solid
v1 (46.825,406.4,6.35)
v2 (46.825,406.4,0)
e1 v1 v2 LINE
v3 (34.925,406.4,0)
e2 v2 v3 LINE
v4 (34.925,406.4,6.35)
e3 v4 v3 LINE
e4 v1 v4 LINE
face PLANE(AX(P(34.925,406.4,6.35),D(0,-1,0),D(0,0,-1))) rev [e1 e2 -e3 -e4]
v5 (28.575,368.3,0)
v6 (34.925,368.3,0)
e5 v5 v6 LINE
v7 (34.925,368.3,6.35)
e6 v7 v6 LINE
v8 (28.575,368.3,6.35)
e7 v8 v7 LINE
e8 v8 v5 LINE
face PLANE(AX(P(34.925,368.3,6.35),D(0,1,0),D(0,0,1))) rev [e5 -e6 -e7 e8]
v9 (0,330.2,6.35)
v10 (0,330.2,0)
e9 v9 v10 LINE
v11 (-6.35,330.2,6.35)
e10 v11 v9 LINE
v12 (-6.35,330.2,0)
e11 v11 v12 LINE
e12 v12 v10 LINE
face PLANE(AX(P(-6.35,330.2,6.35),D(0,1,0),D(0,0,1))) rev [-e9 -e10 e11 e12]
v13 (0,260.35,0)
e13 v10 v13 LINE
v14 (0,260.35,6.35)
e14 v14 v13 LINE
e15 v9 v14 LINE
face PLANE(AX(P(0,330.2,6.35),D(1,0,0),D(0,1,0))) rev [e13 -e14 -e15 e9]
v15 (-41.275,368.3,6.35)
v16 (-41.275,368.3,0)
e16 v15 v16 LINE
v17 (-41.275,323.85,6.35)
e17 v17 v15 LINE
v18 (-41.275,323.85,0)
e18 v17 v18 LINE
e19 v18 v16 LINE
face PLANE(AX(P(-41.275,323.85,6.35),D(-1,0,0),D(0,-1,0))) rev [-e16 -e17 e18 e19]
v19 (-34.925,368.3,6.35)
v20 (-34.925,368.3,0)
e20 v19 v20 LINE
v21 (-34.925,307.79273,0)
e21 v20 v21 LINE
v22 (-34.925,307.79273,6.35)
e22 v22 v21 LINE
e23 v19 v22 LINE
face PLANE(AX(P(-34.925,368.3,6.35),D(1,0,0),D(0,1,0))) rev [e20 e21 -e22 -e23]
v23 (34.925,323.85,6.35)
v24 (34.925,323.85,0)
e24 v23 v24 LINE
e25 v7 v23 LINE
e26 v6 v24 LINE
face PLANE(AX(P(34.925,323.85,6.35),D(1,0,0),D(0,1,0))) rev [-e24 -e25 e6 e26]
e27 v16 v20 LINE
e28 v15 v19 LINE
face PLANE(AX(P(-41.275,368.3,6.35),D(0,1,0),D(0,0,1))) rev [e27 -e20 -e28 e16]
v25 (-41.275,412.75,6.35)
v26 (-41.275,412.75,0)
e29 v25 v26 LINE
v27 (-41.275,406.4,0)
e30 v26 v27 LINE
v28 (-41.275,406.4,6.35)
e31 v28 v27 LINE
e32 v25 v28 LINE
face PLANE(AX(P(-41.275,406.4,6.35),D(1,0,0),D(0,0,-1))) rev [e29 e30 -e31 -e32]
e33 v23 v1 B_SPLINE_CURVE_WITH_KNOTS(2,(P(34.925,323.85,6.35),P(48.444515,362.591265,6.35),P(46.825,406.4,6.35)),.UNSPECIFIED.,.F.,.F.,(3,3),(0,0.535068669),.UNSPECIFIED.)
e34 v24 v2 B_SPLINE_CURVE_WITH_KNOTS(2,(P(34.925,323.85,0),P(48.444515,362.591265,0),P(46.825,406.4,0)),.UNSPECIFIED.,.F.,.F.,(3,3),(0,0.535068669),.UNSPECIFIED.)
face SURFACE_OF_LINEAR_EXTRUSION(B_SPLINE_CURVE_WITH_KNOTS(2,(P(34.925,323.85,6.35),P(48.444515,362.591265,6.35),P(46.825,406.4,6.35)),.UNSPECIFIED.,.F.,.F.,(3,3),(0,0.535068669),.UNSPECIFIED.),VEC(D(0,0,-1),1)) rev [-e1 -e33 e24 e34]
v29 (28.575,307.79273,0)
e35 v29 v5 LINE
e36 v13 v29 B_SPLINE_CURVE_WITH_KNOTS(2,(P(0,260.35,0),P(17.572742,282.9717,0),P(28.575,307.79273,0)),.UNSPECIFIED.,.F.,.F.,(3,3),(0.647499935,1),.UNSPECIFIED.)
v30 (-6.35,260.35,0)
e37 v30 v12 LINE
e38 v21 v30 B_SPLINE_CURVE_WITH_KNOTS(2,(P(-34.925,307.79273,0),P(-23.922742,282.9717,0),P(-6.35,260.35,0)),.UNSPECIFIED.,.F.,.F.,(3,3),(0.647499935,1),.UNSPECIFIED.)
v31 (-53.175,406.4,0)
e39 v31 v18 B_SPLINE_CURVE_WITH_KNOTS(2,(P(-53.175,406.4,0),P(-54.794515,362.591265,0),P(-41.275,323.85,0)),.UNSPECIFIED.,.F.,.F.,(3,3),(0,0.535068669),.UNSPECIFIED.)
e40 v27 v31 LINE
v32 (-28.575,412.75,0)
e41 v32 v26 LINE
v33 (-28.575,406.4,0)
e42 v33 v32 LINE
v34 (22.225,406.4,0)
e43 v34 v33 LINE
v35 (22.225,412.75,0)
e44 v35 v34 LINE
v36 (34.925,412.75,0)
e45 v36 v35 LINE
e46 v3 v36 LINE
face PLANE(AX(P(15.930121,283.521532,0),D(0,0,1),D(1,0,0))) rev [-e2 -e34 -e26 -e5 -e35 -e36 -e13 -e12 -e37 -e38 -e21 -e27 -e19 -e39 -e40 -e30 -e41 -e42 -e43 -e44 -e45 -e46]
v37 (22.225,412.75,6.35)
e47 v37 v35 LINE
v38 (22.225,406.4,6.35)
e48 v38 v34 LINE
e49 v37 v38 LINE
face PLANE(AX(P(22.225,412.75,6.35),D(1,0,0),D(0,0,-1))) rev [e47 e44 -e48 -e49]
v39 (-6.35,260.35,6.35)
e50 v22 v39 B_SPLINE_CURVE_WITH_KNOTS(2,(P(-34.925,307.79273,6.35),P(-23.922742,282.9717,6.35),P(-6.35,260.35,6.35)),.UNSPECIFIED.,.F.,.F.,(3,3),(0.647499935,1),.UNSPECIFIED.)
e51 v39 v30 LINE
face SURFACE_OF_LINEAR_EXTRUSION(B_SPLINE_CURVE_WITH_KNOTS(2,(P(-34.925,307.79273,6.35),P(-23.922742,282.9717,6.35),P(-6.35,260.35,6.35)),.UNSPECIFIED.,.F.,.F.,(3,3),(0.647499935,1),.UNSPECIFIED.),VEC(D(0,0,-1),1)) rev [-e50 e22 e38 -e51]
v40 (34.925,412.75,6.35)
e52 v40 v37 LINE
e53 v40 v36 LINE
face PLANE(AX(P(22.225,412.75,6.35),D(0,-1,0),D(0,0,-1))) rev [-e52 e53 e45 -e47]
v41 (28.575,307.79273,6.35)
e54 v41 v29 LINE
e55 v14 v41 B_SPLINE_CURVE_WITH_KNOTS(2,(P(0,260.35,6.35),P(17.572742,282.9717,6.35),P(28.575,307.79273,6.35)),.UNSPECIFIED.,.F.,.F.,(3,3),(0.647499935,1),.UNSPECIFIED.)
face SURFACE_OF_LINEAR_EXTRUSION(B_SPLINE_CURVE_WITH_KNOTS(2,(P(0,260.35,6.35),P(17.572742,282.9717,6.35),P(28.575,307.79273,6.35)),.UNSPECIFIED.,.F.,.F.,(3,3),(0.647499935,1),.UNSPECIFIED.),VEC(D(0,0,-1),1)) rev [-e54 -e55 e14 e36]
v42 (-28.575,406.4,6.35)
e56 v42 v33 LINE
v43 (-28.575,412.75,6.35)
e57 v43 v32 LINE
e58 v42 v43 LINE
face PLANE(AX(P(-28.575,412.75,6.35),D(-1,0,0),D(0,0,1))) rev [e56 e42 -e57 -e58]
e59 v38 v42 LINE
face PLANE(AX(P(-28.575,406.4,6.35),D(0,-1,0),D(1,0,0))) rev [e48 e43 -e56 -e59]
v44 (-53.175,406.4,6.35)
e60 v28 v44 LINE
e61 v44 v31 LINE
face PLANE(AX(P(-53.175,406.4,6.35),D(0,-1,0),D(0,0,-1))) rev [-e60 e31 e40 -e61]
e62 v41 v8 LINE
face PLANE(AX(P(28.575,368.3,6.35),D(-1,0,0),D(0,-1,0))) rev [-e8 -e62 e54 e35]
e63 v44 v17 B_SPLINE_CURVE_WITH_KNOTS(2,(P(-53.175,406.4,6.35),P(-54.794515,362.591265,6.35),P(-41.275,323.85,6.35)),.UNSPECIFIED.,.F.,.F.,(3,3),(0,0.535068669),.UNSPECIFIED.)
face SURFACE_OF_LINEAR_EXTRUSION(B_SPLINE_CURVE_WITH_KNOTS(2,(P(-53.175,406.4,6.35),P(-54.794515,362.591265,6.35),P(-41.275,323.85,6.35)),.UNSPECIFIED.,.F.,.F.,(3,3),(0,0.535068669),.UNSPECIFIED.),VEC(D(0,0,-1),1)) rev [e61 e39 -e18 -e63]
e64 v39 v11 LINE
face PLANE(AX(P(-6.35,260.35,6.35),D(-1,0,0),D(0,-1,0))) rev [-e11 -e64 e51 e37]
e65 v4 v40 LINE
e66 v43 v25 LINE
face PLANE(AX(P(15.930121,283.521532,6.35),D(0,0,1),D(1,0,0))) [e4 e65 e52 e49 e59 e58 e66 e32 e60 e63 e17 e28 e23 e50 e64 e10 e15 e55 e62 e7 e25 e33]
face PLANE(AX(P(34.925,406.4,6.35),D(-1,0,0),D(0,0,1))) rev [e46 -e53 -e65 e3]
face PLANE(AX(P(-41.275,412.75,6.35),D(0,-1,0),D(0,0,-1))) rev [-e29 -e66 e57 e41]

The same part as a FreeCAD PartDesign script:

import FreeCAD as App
import Part
import Sketcher

V = App.Vector
Q = App.Units.Quantity

doc = App.newDocument("Part")
body = doc.addObject("PartDesign::Body", "Body")

# Sketch on XY plane
sketch1 = doc.addObject("Sketcher::SketchObject", "Sketch")
body.addObject(sketch1)
sketch1.AttachmentSupport = (doc.XY_Plane, [""])
sketch1.MapMode = "FlatFace"
sketch1.addGeometry([
    Part.LineSegment(V(-41.275, 406.4, 0), V(-53.175, 406.4, 0)),  # 0
    Part.BSplineCurve([V(-53.175, 406.4, 0), V(-54.794515, 362.591265, 0), V(-41.275, 323.85, 0)], [3, 3], [0, 0.535068669], False, 2, [1, 1, 1], False),  # 1
    Part.LineSegment(V(-41.275, 323.85, 0), V(-41.275, 368.3, 0)),  # 2
    Part.LineSegment(V(-41.275, 368.3, 0), V(-34.925, 368.3, 0)),  # 3
    Part.LineSegment(V(-34.925, 368.3, 0), V(-34.925, 307.79273, 0)),  # 4
    Part.BSplineCurve([V(-34.925, 307.79273, 0), V(-23.922742, 282.9717, 0), V(-6.35, 260.35, 0)], [3, 3], [0.647499935, 1], False, 2, [1, 1, 1], False),  # 5
    Part.LineSegment(V(-6.35, 260.35, 0), V(-6.35, 330.2, 0)),  # 6
    Part.LineSegment(V(-6.35, 330.2, 0), V(0, 330.2, 0)),  # 7
    Part.LineSegment(V(0, 330.2, 0), V(0, 260.35, 0)),  # 8
    Part.BSplineCurve([V(28.575, 307.79273, 0), V(17.572742, 282.9717, 0), V(0, 260.35, 0)], [3, 3], [0.647499935, 1], False, 2, [1, 1, 1], False),  # 9
    Part.LineSegment(V(28.575, 307.79273, 0), V(28.575, 368.3, 0)),  # 10
    Part.LineSegment(V(28.575, 368.3, 0), V(34.925, 368.3, 0)),  # 11
    Part.LineSegment(V(34.925, 368.3, 0), V(34.925, 323.85, 0)),  # 12
    Part.BSplineCurve([V(46.825, 406.4, 0), V(48.444515, 362.591265, 0), V(34.925, 323.85, 0)], [3, 3], [0, 0.535068669], False, 2, [1, 1, 1], False),  # 13
    Part.LineSegment(V(46.825, 406.4, 0), V(34.925, 406.4, 0)),  # 14
    Part.LineSegment(V(34.925, 406.4, 0), V(34.925, 412.75, 0)),  # 15
    Part.LineSegment(V(34.925, 412.75, 0), V(22.225, 412.75, 0)),  # 16
    Part.LineSegment(V(22.225, 412.75, 0), V(22.225, 406.4, 0)),  # 17
    Part.LineSegment(V(22.225, 406.4, 0), V(-28.575, 406.4, 0)),  # 18
    Part.LineSegment(V(-28.575, 406.4, 0), V(-28.575, 412.75, 0)),  # 19
    Part.LineSegment(V(-28.575, 412.75, 0), V(-41.275, 412.75, 0)),  # 20
    Part.LineSegment(V(-41.275, 412.75, 0), V(-41.275, 406.4, 0)),  # 21
], False)
sketch1.addConstraint([
    Sketcher.Constraint("Block", 1),
    Sketcher.Constraint("Block", 5),
    Sketcher.Constraint("Block", 9),
    Sketcher.Constraint("Block", 13),
    Sketcher.Constraint("Coincident", 0, 2, 1, 1),
    Sketcher.Constraint("Coincident", 1, 2, 2, 1),
    Sketcher.Constraint("Coincident", 2, 2, 3, 1),
    Sketcher.Constraint("Coincident", 3, 2, 4, 1),
    Sketcher.Constraint("Coincident", 4, 2, 5, 1),
    Sketcher.Constraint("Coincident", 5, 2, 6, 1),
    Sketcher.Constraint("Coincident", 6, 2, 7, 1),
    Sketcher.Constraint("Coincident", 7, 2, 8, 1),
    Sketcher.Constraint("Coincident", 8, 2, 9, 2),
    Sketcher.Constraint("Coincident", 9, 1, 10, 1),
    Sketcher.Constraint("Coincident", 10, 2, 11, 1),
    Sketcher.Constraint("Coincident", 11, 2, 12, 1),
    Sketcher.Constraint("Coincident", 12, 2, 13, 2),
    Sketcher.Constraint("Coincident", 13, 1, 14, 1),
    Sketcher.Constraint("Coincident", 14, 2, 15, 1),
    Sketcher.Constraint("Coincident", 15, 2, 16, 1),
    Sketcher.Constraint("Coincident", 16, 2, 17, 1),
    Sketcher.Constraint("Coincident", 17, 2, 18, 1),
    Sketcher.Constraint("Coincident", 18, 2, 19, 1),
    Sketcher.Constraint("Coincident", 19, 2, 20, 1),
    Sketcher.Constraint("Coincident", 20, 2, 21, 1),
    Sketcher.Constraint("Coincident", 21, 2, 0, 1),
    Sketcher.Constraint("Horizontal", 0),
    Sketcher.Constraint("Vertical", 2),
    Sketcher.Constraint("Horizontal", 3),
    Sketcher.Constraint("Vertical", 4),
    Sketcher.Constraint("Vertical", 6),
    Sketcher.Constraint("Horizontal", 7),
    Sketcher.Constraint("Vertical", 8),
    Sketcher.Constraint("Vertical", 10),
    Sketcher.Constraint("Horizontal", 11),
    Sketcher.Constraint("Vertical", 12),
    Sketcher.Constraint("Horizontal", 14),
    Sketcher.Constraint("Vertical", 15),
    Sketcher.Constraint("Horizontal", 16),
    Sketcher.Constraint("Vertical", 17),
    Sketcher.Constraint("Horizontal", 18),
    Sketcher.Constraint("Vertical", 19),
    Sketcher.Constraint("Horizontal", 20),
    Sketcher.Constraint("Vertical", 21),
    Sketcher.Constraint("Horizontal", 3, 2, 10, 2),
    Sketcher.Constraint("Horizontal", 14, 2, 17, 2),
    Sketcher.Constraint("Horizontal", 16, 2, 19, 2),
    Sketcher.Constraint("Vertical", 12, 2, 14, 2),
    Sketcher.Constraint("Vertical", 2, 2, 20, 2),
    Sketcher.Constraint("Equal", 16, 20),
    Sketcher.Constraint("Equal", 11, 15),
    Sketcher.Constraint("DistanceX", 18, 2, 18, 1, Q("2 in")),
    Sketcher.Constraint("DistanceY", -1, 1, 6, 2, Q("13 in")),
    Sketcher.Constraint("DistanceY", 2, 1, 2, 2, Q("1.75 in")),
])
pad1 = doc.addObject("PartDesign::Pad", "Pad")
body.addObject(pad1)
pad1.Profile = sketch1
pad1.Length = Q("0.25 in")

doc.recompute()
